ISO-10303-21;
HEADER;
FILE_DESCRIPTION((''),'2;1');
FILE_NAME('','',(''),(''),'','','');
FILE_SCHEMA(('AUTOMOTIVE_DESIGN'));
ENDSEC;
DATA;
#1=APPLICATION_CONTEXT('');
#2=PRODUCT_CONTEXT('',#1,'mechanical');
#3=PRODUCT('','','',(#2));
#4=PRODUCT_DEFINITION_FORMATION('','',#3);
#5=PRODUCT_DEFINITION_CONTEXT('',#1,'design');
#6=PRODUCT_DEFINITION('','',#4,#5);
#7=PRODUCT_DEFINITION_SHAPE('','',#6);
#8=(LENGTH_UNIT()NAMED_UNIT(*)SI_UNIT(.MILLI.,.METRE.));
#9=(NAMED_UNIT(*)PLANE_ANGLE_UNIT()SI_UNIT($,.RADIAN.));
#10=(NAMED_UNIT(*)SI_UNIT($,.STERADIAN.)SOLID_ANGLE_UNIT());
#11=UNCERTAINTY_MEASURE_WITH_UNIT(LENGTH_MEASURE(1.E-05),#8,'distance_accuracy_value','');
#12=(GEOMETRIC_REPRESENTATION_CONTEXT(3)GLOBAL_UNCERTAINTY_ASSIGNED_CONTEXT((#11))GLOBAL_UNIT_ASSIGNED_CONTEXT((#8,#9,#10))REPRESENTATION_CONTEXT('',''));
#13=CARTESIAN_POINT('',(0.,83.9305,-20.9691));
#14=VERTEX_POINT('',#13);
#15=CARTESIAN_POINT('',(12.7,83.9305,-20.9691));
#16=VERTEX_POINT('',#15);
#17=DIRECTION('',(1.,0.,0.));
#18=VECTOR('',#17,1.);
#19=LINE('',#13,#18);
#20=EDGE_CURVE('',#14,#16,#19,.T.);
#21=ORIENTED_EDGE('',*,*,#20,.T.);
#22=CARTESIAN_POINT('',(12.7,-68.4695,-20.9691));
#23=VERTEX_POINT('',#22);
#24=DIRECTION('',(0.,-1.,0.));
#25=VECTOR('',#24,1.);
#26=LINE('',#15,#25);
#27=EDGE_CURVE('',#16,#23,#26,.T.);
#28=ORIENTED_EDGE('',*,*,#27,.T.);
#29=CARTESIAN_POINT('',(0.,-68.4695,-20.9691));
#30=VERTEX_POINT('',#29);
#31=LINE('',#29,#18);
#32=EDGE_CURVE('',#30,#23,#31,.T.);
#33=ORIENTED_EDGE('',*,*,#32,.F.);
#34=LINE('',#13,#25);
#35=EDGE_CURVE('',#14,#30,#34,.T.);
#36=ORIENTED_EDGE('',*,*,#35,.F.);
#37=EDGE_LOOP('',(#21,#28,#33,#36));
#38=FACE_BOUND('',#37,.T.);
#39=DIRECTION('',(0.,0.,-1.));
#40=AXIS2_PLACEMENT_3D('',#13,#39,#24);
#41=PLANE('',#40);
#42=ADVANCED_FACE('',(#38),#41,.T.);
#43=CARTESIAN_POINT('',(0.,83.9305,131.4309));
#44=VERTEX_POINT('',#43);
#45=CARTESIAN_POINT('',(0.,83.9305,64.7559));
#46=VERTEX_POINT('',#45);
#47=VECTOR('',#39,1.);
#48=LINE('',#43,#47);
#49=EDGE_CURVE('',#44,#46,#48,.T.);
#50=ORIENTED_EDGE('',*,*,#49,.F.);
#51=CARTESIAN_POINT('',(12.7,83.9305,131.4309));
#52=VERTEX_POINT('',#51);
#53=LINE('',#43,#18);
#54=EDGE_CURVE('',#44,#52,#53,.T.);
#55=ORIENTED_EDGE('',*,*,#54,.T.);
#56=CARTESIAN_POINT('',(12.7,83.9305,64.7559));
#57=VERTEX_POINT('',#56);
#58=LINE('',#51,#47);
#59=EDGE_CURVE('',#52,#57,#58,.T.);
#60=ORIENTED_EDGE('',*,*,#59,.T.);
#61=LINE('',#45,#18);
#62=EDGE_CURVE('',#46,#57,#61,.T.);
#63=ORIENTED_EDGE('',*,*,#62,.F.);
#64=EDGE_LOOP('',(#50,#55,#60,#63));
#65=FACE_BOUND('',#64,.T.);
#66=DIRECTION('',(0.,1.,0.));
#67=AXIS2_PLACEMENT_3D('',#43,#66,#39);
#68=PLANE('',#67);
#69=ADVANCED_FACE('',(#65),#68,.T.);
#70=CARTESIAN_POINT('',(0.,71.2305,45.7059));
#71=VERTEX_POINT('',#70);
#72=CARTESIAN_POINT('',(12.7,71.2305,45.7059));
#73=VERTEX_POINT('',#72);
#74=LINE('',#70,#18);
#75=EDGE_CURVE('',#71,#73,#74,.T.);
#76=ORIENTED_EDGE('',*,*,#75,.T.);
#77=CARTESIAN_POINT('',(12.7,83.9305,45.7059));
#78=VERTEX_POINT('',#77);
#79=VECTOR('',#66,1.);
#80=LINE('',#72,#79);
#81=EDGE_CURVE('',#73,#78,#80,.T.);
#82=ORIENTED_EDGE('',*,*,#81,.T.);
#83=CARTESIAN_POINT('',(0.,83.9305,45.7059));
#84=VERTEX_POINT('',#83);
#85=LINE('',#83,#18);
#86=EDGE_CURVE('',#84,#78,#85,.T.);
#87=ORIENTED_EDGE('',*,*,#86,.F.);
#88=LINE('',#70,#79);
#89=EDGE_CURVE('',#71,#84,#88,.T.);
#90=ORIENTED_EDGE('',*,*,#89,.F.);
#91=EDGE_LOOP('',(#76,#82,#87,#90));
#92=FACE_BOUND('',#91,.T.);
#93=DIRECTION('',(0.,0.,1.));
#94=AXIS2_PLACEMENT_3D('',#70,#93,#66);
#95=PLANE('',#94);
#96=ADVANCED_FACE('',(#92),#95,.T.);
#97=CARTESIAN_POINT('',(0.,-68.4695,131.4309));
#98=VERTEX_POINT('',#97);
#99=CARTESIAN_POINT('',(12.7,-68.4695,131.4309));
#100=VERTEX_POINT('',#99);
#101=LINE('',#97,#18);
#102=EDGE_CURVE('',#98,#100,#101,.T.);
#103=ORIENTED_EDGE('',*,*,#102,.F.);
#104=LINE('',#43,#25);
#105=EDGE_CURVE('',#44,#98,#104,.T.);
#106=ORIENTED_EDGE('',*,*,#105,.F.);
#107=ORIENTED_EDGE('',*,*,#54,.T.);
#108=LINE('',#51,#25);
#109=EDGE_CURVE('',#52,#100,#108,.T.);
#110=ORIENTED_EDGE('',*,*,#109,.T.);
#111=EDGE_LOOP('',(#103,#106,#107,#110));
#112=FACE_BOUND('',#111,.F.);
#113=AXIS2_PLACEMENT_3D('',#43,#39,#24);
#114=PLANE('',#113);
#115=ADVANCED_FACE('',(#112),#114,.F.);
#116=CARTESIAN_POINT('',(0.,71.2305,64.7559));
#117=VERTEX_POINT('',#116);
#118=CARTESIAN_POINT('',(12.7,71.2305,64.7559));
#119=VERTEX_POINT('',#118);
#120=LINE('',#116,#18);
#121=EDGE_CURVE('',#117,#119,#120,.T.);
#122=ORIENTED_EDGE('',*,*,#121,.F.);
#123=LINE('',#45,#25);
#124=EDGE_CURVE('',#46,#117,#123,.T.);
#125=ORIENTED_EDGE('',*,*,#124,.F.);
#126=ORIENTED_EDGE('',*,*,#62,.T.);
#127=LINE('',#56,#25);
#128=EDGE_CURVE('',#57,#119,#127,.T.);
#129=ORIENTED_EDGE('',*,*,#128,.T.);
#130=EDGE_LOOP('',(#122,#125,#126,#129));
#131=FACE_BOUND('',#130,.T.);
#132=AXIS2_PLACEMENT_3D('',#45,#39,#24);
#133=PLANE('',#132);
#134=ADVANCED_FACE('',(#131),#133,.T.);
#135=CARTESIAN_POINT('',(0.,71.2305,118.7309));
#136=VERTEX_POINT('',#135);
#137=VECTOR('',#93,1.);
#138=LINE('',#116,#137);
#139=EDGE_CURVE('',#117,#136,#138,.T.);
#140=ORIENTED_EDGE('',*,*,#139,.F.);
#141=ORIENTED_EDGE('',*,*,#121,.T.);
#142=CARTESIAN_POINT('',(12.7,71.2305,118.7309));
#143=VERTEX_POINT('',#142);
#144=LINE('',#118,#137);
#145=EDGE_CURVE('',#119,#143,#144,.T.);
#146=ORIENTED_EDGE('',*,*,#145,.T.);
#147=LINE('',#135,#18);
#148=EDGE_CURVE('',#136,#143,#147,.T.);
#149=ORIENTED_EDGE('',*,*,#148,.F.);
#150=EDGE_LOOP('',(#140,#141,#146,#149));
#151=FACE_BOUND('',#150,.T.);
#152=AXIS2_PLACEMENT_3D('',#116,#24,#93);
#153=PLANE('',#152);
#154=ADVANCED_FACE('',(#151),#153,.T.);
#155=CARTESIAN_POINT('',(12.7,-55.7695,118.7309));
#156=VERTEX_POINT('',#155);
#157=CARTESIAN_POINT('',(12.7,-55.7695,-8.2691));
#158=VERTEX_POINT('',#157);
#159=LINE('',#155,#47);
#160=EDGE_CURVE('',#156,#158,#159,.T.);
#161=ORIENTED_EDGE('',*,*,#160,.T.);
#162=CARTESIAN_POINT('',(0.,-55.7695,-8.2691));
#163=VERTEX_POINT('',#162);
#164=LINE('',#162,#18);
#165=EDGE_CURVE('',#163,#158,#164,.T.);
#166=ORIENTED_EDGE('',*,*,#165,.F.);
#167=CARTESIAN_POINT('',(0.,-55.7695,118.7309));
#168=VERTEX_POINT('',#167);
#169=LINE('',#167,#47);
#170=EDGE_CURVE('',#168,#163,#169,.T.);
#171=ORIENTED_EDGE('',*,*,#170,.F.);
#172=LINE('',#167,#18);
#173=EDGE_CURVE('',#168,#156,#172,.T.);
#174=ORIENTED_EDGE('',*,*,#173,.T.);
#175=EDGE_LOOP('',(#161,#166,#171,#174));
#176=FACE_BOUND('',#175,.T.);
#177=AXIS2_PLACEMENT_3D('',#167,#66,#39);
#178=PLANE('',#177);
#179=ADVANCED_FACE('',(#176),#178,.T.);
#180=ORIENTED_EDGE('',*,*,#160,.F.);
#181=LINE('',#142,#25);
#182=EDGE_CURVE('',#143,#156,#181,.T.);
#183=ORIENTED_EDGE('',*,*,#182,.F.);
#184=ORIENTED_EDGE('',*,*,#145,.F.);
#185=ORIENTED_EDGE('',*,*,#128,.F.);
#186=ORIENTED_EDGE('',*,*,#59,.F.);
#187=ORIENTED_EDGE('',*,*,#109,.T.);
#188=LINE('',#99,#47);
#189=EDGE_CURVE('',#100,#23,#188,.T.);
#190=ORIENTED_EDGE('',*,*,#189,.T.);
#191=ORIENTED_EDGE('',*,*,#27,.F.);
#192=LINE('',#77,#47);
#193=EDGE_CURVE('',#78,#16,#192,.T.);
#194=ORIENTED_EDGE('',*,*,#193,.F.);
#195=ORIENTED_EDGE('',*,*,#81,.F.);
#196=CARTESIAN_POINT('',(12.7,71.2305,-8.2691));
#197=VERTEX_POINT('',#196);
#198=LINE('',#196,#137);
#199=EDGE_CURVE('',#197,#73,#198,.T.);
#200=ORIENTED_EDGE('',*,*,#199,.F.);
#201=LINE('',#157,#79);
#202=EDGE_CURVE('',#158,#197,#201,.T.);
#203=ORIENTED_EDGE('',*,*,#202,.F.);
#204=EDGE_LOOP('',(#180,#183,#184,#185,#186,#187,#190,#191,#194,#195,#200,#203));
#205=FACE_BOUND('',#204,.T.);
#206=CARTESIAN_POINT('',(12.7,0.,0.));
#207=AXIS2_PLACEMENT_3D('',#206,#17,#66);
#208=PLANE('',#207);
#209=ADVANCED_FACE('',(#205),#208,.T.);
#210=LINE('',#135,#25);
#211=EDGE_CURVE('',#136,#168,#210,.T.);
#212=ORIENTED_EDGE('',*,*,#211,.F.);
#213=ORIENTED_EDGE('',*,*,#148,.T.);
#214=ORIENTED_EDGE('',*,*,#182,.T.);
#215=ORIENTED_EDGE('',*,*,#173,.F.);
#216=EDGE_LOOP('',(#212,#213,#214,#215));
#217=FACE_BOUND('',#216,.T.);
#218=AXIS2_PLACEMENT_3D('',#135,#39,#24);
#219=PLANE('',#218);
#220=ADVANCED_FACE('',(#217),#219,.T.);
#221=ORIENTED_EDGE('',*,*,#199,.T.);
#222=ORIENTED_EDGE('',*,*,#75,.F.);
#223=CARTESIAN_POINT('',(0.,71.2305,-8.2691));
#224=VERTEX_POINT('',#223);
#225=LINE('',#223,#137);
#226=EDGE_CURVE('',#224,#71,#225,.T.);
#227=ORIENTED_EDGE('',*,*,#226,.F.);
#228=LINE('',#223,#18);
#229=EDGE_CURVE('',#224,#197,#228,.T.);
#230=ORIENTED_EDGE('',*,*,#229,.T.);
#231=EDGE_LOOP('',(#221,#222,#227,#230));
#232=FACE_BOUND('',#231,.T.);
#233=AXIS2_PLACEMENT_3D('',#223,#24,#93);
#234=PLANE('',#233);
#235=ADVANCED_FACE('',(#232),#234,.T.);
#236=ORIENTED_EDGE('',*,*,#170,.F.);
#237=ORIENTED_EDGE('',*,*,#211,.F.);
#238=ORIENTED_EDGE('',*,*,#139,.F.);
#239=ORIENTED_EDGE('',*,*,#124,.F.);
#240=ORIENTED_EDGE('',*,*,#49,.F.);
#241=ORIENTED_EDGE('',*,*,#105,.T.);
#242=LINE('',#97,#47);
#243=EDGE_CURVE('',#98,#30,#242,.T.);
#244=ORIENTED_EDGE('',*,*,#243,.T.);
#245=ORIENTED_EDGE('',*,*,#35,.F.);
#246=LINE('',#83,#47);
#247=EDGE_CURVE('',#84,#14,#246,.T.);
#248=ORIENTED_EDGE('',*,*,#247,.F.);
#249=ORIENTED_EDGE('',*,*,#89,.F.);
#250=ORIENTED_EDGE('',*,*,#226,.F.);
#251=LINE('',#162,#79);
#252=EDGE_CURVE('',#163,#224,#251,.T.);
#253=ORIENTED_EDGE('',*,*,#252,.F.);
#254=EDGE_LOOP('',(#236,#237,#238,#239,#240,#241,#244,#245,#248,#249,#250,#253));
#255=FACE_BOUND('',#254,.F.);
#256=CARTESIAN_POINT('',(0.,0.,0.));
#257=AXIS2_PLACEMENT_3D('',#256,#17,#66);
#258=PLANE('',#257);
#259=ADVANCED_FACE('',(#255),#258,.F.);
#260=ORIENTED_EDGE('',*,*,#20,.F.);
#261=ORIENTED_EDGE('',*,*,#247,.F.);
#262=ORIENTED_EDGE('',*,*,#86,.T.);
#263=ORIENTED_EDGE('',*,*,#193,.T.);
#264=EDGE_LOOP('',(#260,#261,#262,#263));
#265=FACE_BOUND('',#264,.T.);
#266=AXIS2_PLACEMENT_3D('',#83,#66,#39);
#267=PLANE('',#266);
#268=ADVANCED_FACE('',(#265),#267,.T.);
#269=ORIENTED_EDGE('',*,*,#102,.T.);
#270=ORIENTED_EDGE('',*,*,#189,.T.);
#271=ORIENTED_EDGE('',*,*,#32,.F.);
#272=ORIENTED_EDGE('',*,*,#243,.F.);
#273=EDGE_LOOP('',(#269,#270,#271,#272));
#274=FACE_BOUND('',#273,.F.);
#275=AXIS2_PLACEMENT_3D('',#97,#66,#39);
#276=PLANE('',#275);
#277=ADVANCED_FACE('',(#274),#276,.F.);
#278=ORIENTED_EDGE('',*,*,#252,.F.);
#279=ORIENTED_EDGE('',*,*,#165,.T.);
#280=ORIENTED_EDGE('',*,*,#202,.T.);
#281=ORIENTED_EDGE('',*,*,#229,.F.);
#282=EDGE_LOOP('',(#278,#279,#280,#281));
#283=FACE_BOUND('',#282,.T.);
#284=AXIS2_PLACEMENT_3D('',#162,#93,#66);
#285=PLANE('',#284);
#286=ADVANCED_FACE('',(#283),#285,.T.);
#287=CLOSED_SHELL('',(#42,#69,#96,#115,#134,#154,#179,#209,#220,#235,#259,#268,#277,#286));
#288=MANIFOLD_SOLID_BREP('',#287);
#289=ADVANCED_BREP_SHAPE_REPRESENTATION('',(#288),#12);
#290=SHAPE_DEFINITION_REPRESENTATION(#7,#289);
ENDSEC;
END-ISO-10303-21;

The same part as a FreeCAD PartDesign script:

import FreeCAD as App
import Part
import Sketcher

V = App.Vector
Q = App.Units.Quantity


def add_polygon(sketch, points):
    """Adds a closed chain of lines whose ends are joined by coincident constraints."""
    first, n = sketch.GeometryCount, len(points)
    for a, b in zip(points, points[1:] + points[:1]):
        sketch.addGeometry(Part.LineSegment(App.Vector(*a, 0), App.Vector(*b, 0)), False)
    for i in range(n):
        sketch.addConstraint(Sketcher.Constraint("Coincident", first + i, 2, first + (i + 1) % n, 1))

doc = App.newDocument("Part")
body = doc.addObject("PartDesign::Body", "Body")

# Sketch on YZ plane
sketch1 = body.newObject("Sketcher::SketchObject", "Sketch")
sketch1.AttachmentSupport = (doc.getObject("YZ_Plane"), [""])
sketch1.MapMode = "FlatFace"
add_polygon(sketch1, [(84, 65), (84, 131), (-68, 131), (-68, -21), (84, -21), (84, 46), (71, 46), (71, -8), (-56, -8), (-56, 119), (71, 119), (71, 65)])  # lines 0-11
sketch1.addConstraint(Sketcher.Constraint("Vertical", 0))
sketch1.addConstraint(Sketcher.Constraint("Horizontal", 1))
sketch1.addConstraint(Sketcher.Constraint("Vertical", 2))
sketch1.addConstraint(Sketcher.Constraint("Horizontal", 3))
sketch1.addConstraint(Sketcher.Constraint("Vertical", 4))
sketch1.addConstraint(Sketcher.Constraint("Horizontal", 5))
sketch1.addConstraint(Sketcher.Constraint("Vertical", 6))
sketch1.addConstraint(Sketcher.Constraint("Horizontal", 7))
sketch1.addConstraint(Sketcher.Constraint("Vertical", 8))
sketch1.addConstraint(Sketcher.Constraint("Horizontal", 9))
sketch1.addConstraint(Sketcher.Constraint("Vertical", 10))
sketch1.addConstraint(Sketcher.Constraint("Horizontal", 11))
sketch1.addConstraint(Sketcher.Constraint("Vertical", 0, 2, 3, 2))
sketch1.addConstraint(Sketcher.Constraint("Vertical", 6, 2, 9, 2))
sketch1.addConstraint(Sketcher.Constraint("Equal", 3, 2))
sketch1.addConstraint(Sketcher.Constraint("Equal", 0, 4))
sketch1.addConstraint(Sketcher.Constraint("Equal", 9, 8))
sketch1.addConstraint(Sketcher.Constraint("Equal", 6, 10))
sketch1.addConstraint(Sketcher.Constraint("DistanceX", 1, 2, 1, 1, Q("6 in")))
sketch1.addConstraint(Sketcher.Constraint("DistanceX", 5, 2, 5, 1, Q("0.5 in")))
sketch1.addConstraint(Sketcher.Constraint("DistanceY", 3, 2, 6, 2, Q("0.5 in")))
sketch1.addConstraint(Sketcher.Constraint("DistanceY", 0, 1, 0, 2, Q("2.625 in")))
sketch1.addConstraint(Sketcher.Constraint("DistanceX", -1, 1, 0, 2, Q("83.9305 mm")))
sketch1.addConstraint(Sketcher.Constraint("DistanceY", -1, 1, 0, 2, Q("131.431 mm")))
pad1 = body.newObject("PartDesign::Pad", "Pad")
pad1.Profile = sketch1
pad1.Length = Q("0.5 in")

doc.recompute()
